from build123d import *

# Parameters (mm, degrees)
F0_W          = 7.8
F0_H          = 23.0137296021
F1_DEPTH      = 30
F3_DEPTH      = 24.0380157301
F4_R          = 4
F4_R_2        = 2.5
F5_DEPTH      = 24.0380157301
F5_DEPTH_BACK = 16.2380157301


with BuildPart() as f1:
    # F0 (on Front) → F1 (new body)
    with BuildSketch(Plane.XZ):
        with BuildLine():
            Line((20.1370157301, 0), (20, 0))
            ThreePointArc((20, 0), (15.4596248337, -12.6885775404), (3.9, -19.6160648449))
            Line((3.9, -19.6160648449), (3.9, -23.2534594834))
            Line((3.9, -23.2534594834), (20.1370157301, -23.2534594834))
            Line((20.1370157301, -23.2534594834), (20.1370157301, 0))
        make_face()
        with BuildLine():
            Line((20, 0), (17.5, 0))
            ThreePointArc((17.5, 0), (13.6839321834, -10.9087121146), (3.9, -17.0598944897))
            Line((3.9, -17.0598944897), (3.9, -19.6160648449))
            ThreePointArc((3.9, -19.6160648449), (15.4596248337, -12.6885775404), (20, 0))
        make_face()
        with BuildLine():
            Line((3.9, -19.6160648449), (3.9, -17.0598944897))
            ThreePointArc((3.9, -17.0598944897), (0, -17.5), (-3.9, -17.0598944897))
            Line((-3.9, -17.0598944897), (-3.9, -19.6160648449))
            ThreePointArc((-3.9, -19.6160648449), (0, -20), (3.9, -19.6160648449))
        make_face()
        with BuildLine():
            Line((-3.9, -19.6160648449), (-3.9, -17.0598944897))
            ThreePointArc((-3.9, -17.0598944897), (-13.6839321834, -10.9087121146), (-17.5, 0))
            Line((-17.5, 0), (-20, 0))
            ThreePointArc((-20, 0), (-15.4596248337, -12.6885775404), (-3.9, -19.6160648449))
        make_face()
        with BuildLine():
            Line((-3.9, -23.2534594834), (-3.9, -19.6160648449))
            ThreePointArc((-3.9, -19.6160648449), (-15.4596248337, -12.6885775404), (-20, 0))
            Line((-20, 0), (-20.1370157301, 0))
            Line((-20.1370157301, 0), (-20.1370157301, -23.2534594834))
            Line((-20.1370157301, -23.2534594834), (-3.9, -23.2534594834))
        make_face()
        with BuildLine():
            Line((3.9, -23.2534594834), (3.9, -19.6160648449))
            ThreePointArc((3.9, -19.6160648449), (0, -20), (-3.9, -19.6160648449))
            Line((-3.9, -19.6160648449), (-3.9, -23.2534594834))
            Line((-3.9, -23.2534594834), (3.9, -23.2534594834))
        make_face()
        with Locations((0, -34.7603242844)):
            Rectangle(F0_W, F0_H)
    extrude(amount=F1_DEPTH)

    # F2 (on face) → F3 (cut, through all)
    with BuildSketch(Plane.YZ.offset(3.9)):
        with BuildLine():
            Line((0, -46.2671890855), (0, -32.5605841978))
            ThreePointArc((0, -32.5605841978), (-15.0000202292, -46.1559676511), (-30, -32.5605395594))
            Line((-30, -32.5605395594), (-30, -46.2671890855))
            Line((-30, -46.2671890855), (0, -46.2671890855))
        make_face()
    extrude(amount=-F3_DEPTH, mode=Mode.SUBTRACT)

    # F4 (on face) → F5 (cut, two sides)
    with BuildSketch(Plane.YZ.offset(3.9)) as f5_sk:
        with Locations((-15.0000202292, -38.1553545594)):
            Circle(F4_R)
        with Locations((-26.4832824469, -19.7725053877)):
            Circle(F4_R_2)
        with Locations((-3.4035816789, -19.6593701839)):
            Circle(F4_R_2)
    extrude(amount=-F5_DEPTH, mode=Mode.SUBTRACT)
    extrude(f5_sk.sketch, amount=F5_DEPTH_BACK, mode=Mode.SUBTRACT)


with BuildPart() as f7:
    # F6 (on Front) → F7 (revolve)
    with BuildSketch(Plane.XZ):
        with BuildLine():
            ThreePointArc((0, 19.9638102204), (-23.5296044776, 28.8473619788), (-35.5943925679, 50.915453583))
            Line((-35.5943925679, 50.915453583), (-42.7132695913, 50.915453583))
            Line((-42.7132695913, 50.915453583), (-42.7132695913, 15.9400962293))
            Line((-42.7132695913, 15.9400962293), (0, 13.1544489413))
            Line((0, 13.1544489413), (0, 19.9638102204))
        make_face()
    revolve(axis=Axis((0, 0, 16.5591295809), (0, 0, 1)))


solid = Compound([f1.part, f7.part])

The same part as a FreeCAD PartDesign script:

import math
import FreeCAD as App
import Part
import Sketcher
from FreeCAD import Vector

doc = App.newDocument("Part")
body = doc.addObject("PartDesign::Body", "Body")

# Sketch on XZ plane
sketch1 = body.newObject("Sketcher::SketchObject", "Sketch")
sketch1.AttachmentSupport = (doc.getObject("XZ_Plane"), [""])
sketch1.MapMode = "FlatFace"
sketch1.addGeometry(Part.LineSegment(Vector(20.1, 0, 0), Vector(17.5, 0, 0)), False)
sketch1.addGeometry(Part.ArcOfCircle(Part.Circle(Vector(0, 0, 0), Vector(0, 0, 1), 17.5), math.radians(-77), math.radians(0)), False)
sketch1.addGeometry(Part.ArcOfCircle(Part.Circle(Vector(0, 0, 0), Vector(0, 0, 1), 17.5), math.radians(-103), math.radians(-77)), False)
sketch1.addGeometry(Part.ArcOfCircle(Part.Circle(Vector(0, 0, 0), Vector(0, 0, 1), 17.5), math.radians(180), math.radians(257)), False)
sketch1.addGeometry(Part.LineSegment(Vector(-17.5, 0, 0), Vector(-20.1, 0, 0)), False)
sketch1.addGeometry(Part.LineSegment(Vector(-20.1, 0, 0), Vector(-20.1, -23.3, 0)), False)
sketch1.addGeometry(Part.LineSegment(Vector(-20.1, -23.3, 0), Vector(-3.9, -23.3, 0)), False)
sketch1.addGeometry(Part.LineSegment(Vector(-3.9, -23.3, 0), Vector(-3.9, -46.3, 0)), False)
sketch1.addGeometry(Part.LineSegment(Vector(-3.9, -46.3, 0), Vector(3.9, -46.3, 0)), False)
sketch1.addGeometry(Part.LineSegment(Vector(3.9, -46.3, 0), Vector(3.9, -23.3, 0)), False)
sketch1.addGeometry(Part.LineSegment(Vector(3.9, -23.3, 0), Vector(20.1, -23.3, 0)), False)
sketch1.addGeometry(Part.LineSegment(Vector(20.1, -23.3, 0), Vector(20.1, 0, 0)), False)
sketch1.addConstraint(Sketcher.Constraint("Coincident", 0, 2, 1, 2))
sketch1.addConstraint(Sketcher.Constraint("Tangent", 1, 1, 2, 2))
sketch1.addConstraint(Sketcher.Constraint("Tangent", 2, 1, 3, 2))
sketch1.addConstraint(Sketcher.Constraint("Coincident", 3, 1, 4, 1))
sketch1.addConstraint(Sketcher.Constraint("Coincident", 4, 2, 5, 1))
sketch1.addConstraint(Sketcher.Constraint("Coincident", 5, 2, 6, 1))
sketch1.addConstraint(Sketcher.Constraint("Coincident", 6, 2, 7, 1))
sketch1.addConstraint(Sketcher.Constraint("Coincident", 7, 2, 8, 1))
sketch1.addConstraint(Sketcher.Constraint("Coincident", 8, 2, 9, 1))
sketch1.addConstraint(Sketcher.Constraint("Coincident", 9, 2, 10, 1))
sketch1.addConstraint(Sketcher.Constraint("Coincident", 10, 2, 11, 1))
sketch1.addConstraint(Sketcher.Constraint("Coincident", 11, 2, 0, 1))
sketch1.addConstraint(Sketcher.Constraint("Horizontal", 0))
sketch1.addConstraint(Sketcher.Constraint("Horizontal", 4))
sketch1.addConstraint(Sketcher.Constraint("Vertical", 5))
sketch1.addConstraint(Sketcher.Constraint("Horizontal", 6))
sketch1.addConstraint(Sketcher.Constraint("Vertical", 7))
sketch1.addConstraint(Sketcher.Constraint("Horizontal", 8))
sketch1.addConstraint(Sketcher.Constraint("Vertical", 9))
sketch1.addConstraint(Sketcher.Constraint("Horizontal", 10))
sketch1.addConstraint(Sketcher.Constraint("Vertical", 11))
sketch1.addConstraint(Sketcher.Constraint("Coincident", 1, 3, -1, 1))
sketch1.addConstraint(Sketcher.Constraint("Coincident", 3, 3, -1, 1))
sketch1.addConstraint(Sketcher.Constraint("Symmetric", 4, 2, 11, 2, -1, 1))
sketch1.addConstraint(Sketcher.Constraint("Symmetric", 6, 2, 9, 2, -2))
sketch1.addConstraint(Sketcher.Constraint("PointOnObject", 0, 2, -1))
sketch1.addConstraint(Sketcher.Constraint("Horizontal", 1, 1, 2, 1))
sketch1.addConstraint(Sketcher.Constraint("Vertical", 2, 1, 6, 2))
sketch1.addConstraint(Sketcher.Constraint("Radius", 1, 17.5))
sketch1.addConstraint(Sketcher.Constraint("DistanceX", 8, 1, 8, 2, 7.8))
sketch1.addConstraint(Sketcher.Constraint("DistanceY", 5, 2, 5, 1, 23.253459))
sketch1.addConstraint(Sketcher.Constraint("DistanceY", 7, 2, 7, 1, 23.01373))
sketch1.addConstraint(Sketcher.Constraint("DistanceX", 0, 2, 0, 1, 2.637016))
pad1 = body.newObject("PartDesign::Pad", "Pad")
pad1.Profile = sketch1
pad1.Length = 30

# Sketch on YZ plane
sketch2 = body.newObject("Sketcher::SketchObject", "Sketch001")
sketch2.AttachmentSupport = (doc.getObject("YZ_Plane"), [""])
sketch2.MapMode = "FlatFace"
sketch2.AttachmentOffset = App.Placement(Vector(0, 0, 3.9), App.Rotation())
sketch2.addGeometry(Part.LineSegment(Vector(0, -46, 0), Vector(0, -33, 0)), False)
sketch2.addGeometry(Part.ArcOfCircle(Part.Circle(Vector(-15, -31, 0), Vector(0, 0, 1), 15), math.radians(-174), math.radians(-6)), False)
sketch2.addGeometry(Part.LineSegment(Vector(-30, -33, 0), Vector(-30, -46, 0)), False)
sketch2.addGeometry(Part.LineSegment(Vector(-30, -46, 0), Vector(0, -46, 0)), False)
sketch2.addConstraint(Sketcher.Constraint("Coincident", 0, 2, 1, 2))
sketch2.addConstraint(Sketcher.Constraint("Coincident", 1, 1, 2, 1))
sketch2.addConstraint(Sketcher.Constraint("Coincident", 2, 2, 3, 1))
sketch2.addConstraint(Sketcher.Constraint("Coincident", 3, 2, 0, 1))
sketch2.addConstraint(Sketcher.Constraint("Vertical", 0))
sketch2.addConstraint(Sketcher.Constraint("Vertical", 2))
sketch2.addConstraint(Sketcher.Constraint("Horizontal", 3))
sketch2.addConstraint(Sketcher.Constraint("PointOnObject", 0, 2, -2))
sketch2.addConstraint(Sketcher.Constraint("DistanceX", 3, 1, 3, 2, 30.0))
sketch2.addConstraint(Sketcher.Constraint("Radius", 1, 15.072557))
sketch2.addConstraint(Sketcher.Constraint("DistanceY", 2, 2, 2, 1, 13.70665))
sketch2.addConstraint(Sketcher.Constraint("DistanceY", 0, 1, 0, 2, 13.706605))
sketch2.addConstraint(Sketcher.Constraint("DistanceY", 1, 3, -1, 1, 31.083411))
pocket1 = body.newObject("PartDesign::Pocket", "Pocket")
pocket1.Profile = sketch2
pocket1.Type = "ThroughAll"

# Sketch on YZ plane
sketch3 = body.newObject("Sketcher::SketchObject", "Sketch002")
sketch3.AttachmentSupport = (doc.getObject("YZ_Plane"), [""])
sketch3.MapMode = "FlatFace"
sketch3.AttachmentOffset = App.Placement(Vector(0, 0, 3.9), App.Rotation())
sketch3.addGeometry(Part.Circle(Vector(-15, -38.2, 0), Vector(0, 0, 1), 4), False)
sketch3.addGeometry(Part.Circle(Vector(-26.5, -19.8, 0), Vector(0, 0, 1), 2.5), False)
sketch3.addGeometry(Part.Circle(Vector(-3.4, -19.7, 0), Vector(0, 0, 1), 2.5), False)
sketch3.addConstraint(Sketcher.Constraint("Equal", 1, 2))
sketch3.addConstraint(Sketcher.Constraint("Diameter", 0, 8.0))
sketch3.addConstraint(Sketcher.Constraint("Diameter", 1, 5.0))
sketch3.addConstraint(Sketcher.Constraint("DistanceX", 1, 3, 2, 3, 23.079701))
sketch3.addConstraint(Sketcher.Constraint("DistanceX", 0, 3, -1, 1, 15.00002))
sketch3.addConstraint(Sketcher.Constraint("DistanceX", 2, 3, -1, 1, 3.403582))
sketch3.addConstraint(Sketcher.Constraint("DistanceY", 2, 3, -1, 1, 19.65937))
sketch3.addConstraint(Sketcher.Constraint("DistanceY", 0, 3, 1, 3, 18.382849))
sketch3.addConstraint(Sketcher.Constraint("DistanceY", 0, 3, -1, 1, 38.155355))
pocket2 = body.newObject("PartDesign::Pocket", "Pocket001")
pocket2.Profile = sketch3
pocket2.Type = "ThroughAll"
pocket2.Midplane = True
body2 = doc.addObject("PartDesign::Body", "Body001")

# Sketch on XZ plane
sketch4 = body2.newObject("Sketcher::SketchObject", "Sketch003")
sketch4.AttachmentSupport = (doc.getObject("XZ_Plane001"), [""])
sketch4.MapMode = "FlatFace"
sketch4.addGeometry(Part.ArcOfCircle(Part.Circle(Vector(0, 56, 0), Vector(0, 0, 1), 36), math.radians(-172), math.radians(-90)), False)
sketch4.addGeometry(Part.LineSegment(Vector(-36, 51, 0), Vector(-43, 51, 0)), False)
sketch4.addGeometry(Part.LineSegment(Vector(-43, 51, 0), Vector(-43, 16, 0)), False)
sketch4.addGeometry(Part.LineSegment(Vector(-43, 16, 0), Vector(0, 13, 0)), False)
sketch4.addGeometry(Part.LineSegment(Vector(0, 13, 0), Vector(0, 20, 0)), False)
sketch4.addConstraint(Sketcher.Constraint("Coincident", 0, 1, 1, 1))
sketch4.addConstraint(Sketcher.Constraint("Coincident", 1, 2, 2, 1))
sketch4.addConstraint(Sketcher.Constraint("Coincident", 2, 2, 3, 1))
sketch4.addConstraint(Sketcher.Constraint("Coincident", 3, 2, 4, 1))
sketch4.addConstraint(Sketcher.Constraint("Coincident", 4, 2, 0, 2))
sketch4.addConstraint(Sketcher.Constraint("Horizontal", 1))
sketch4.addConstraint(Sketcher.Constraint("Vertical", 2))
sketch4.addConstraint(Sketcher.Constraint("Vertical", 4))
sketch4.addConstraint(Sketcher.Constraint("PointOnObject", 3, 2, -2))
sketch4.addConstraint(Sketcher.Constraint("Radius", 0, 36.204003))
sketch4.addConstraint(Sketcher.Constraint("DistanceY", 4, 1, 4, 2, 6.809361))
sketch4.addConstraint(Sketcher.Constraint("Distance", 3, 42.80401))
sketch4.addConstraint(Sketcher.Constraint("DistanceX", 1, 2, 1, 1, 7.118877))
sketch4.addConstraint(Sketcher.Constraint("DistanceY", 2, 2, 2, 1, 34.975357))
sketch4.addConstraint(Sketcher.Constraint("DistanceX", -1, 1, 0, 3, 0.226691))
sketch4.addConstraint(Sketcher.Constraint("DistanceY", -1, 1, 3, 2, 13.154449))
revolution = body2.newObject("PartDesign::Revolution", "Revolution")
revolution.Profile = sketch4
revolution.ReferenceAxis = (sketch4, ["V_Axis"])
revolution.Angle = 360

doc.recompute()
